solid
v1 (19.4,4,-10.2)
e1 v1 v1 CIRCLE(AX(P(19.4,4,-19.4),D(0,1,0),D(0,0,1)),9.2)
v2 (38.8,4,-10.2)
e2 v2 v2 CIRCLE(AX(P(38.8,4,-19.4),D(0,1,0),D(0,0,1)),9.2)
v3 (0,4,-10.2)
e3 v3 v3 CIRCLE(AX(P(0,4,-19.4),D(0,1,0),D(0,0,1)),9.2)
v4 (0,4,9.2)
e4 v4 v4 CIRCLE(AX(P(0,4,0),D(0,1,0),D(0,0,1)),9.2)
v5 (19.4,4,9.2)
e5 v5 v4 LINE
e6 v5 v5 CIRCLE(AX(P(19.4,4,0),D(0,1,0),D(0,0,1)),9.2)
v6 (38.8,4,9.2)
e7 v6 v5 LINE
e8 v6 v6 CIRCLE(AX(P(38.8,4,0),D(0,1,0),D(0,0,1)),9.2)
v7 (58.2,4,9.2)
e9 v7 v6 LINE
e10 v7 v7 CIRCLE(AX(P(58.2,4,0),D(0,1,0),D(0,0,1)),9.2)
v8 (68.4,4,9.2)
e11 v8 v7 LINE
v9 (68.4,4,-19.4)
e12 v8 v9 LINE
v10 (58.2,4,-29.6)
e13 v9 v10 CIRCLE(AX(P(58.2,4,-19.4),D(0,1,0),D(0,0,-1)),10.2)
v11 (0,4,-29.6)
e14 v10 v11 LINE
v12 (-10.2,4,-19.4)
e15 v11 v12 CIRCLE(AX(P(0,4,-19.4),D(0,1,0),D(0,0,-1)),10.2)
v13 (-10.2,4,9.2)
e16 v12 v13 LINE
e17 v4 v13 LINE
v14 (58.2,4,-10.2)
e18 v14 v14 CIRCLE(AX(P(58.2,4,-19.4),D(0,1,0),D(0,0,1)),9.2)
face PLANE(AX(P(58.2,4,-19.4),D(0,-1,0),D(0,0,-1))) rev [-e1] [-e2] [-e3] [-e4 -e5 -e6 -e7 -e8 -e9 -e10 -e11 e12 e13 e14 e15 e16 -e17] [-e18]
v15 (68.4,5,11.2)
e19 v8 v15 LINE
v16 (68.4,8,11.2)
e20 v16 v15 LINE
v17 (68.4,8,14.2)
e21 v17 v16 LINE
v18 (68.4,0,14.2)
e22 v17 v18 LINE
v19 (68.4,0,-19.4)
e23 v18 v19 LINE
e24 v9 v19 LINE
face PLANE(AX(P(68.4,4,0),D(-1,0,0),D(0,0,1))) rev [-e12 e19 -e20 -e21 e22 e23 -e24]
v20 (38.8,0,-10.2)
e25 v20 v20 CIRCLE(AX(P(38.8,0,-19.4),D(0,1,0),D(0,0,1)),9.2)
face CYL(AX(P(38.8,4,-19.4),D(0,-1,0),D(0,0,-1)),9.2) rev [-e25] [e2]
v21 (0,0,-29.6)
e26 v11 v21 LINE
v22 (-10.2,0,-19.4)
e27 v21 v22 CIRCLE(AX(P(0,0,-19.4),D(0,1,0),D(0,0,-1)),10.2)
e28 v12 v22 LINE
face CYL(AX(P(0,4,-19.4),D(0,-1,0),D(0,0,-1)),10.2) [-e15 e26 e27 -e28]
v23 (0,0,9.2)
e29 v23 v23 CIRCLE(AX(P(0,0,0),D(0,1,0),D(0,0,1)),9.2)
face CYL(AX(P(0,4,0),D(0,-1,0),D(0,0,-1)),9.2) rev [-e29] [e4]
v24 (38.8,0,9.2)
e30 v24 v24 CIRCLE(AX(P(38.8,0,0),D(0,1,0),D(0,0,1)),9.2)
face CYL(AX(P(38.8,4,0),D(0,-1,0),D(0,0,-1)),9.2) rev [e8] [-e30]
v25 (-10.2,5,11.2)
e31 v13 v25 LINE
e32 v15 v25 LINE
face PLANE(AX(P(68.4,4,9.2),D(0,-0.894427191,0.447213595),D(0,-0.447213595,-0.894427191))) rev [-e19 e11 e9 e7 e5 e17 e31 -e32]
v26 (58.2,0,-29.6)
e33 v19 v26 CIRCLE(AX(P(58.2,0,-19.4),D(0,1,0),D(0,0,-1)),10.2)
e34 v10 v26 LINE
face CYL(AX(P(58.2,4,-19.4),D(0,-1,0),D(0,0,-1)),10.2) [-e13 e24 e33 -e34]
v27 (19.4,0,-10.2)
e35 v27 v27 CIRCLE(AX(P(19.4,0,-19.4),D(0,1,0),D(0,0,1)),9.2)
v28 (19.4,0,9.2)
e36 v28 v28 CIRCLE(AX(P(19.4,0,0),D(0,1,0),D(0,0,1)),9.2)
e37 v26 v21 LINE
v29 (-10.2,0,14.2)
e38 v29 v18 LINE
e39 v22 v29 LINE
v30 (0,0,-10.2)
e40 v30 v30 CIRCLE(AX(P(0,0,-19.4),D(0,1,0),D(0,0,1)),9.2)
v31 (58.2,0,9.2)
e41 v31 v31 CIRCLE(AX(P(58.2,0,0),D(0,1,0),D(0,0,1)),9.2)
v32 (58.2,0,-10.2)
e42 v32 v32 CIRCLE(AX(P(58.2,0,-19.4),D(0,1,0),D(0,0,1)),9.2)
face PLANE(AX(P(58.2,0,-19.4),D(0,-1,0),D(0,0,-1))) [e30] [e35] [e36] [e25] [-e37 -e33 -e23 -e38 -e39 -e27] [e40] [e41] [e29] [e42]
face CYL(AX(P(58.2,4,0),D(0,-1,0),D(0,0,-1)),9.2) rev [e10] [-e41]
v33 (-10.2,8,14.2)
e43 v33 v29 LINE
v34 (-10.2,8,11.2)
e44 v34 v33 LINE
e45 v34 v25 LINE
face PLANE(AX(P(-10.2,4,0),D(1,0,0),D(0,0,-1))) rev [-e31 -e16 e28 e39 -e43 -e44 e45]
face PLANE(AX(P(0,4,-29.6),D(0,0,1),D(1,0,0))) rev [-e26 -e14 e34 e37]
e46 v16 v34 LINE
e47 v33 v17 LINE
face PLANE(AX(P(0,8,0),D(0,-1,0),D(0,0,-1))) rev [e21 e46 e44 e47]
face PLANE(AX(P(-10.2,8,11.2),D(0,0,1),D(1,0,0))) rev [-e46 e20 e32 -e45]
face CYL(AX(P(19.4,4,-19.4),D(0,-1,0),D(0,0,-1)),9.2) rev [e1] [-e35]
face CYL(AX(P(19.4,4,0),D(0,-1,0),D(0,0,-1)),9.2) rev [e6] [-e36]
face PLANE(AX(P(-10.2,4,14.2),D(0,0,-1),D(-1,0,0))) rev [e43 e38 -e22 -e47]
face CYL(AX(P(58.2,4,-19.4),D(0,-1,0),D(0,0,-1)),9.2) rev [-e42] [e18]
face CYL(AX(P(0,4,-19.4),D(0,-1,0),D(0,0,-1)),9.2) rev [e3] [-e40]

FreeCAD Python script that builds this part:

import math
import FreeCAD as App
import Part
import Sketcher
from FreeCAD import Vector
Q = App.Units.Quantity

doc = App.newDocument("Part")
body = doc.addObject("PartDesign::Body", "Body")

# Sketch on XZ plane
sketch1 = body.newObject("Sketcher::SketchObject", "Sketch")
sketch1.AttachmentSupport = (doc.getObject("XZ_Plane"), [""])
sketch1.MapMode = "FlatFace"
sketch1.addGeometry([
    Part.LineSegment(Vector(-10, 14, 0), Vector(68, 14, 0)),  # 0
    Part.LineSegment(Vector(68, 14, 0), Vector(68, -19, 0)),  # 1
    Part.ArcOfCircle(Part.Circle(Vector(58, -19, 0), Vector(0, 0, 1), 10), math.radians(-90), math.radians(0)),  # 2
    Part.LineSegment(Vector(58, -30, 0), Vector(0, -30, 0)),  # 3
    Part.ArcOfCircle(Part.Circle(Vector(0, -19, 0), Vector(0, 0, 1), 10), math.radians(180), math.radians(270)),  # 4
    Part.LineSegment(Vector(-10, -19, 0), Vector(-10, 14, 0)),  # 5
    Part.Circle(Vector(0, 0, 0), Vector(0, 0, 1), 9),  # 6
    Part.Circle(Vector(19, 0, 0), Vector(0, 0, 1), 9),  # 7
    Part.Circle(Vector(39, 0, 0), Vector(0, 0, 1), 9),  # 8
    Part.Circle(Vector(58, 0, 0), Vector(0, 0, 1), 9),  # 9
    Part.Circle(Vector(0, -19, 0), Vector(0, 0, 1), 9),  # 10
    Part.Circle(Vector(19, -19, 0), Vector(0, 0, 1), 9),  # 11
    Part.Circle(Vector(39, -19, 0), Vector(0, 0, 1), 9),  # 12
    Part.Circle(Vector(58, -19, 0), Vector(0, 0, 1), 9),  # 13
], False)
sketch1.addConstraint([
    Sketcher.Constraint("Coincident", 0, 2, 1, 1),
    Sketcher.Constraint("Tangent", 1, 2, 2, 2),
    Sketcher.Constraint("Tangent", 2, 1, 3, 1),
    Sketcher.Constraint("Tangent", 3, 2, 4, 2),
    Sketcher.Constraint("Tangent", 4, 1, 5, 1),
    Sketcher.Constraint("Coincident", 5, 2, 0, 1),
    Sketcher.Constraint("Horizontal", 0),
    Sketcher.Constraint("Vertical", 1),
    Sketcher.Constraint("Horizontal", 3),
    Sketcher.Constraint("Vertical", 5),
    Sketcher.Constraint("Coincident", 6, 3, -1, 1),
    Sketcher.Constraint("Coincident", 10, 3, 4, 3),
    Sketcher.Constraint("Coincident", 13, 3, 2, 3),
    Sketcher.Constraint("Equal", 2, 4),
    Sketcher.Constraint("Equal", 6, 7),
    Sketcher.Constraint("Equal", 7, 8),
    Sketcher.Constraint("Equal", 8, 9),
    Sketcher.Constraint("Equal", 9, 10),
    Sketcher.Constraint("Equal", 10, 11),
    Sketcher.Constraint("Equal", 11, 12),
    Sketcher.Constraint("Equal", 12, 13),
    Sketcher.Constraint("PointOnObject", 4, 3, -2),
    Sketcher.Constraint("PointOnObject", 7, 3, -1),
    Sketcher.Constraint("PointOnObject", 8, 3, -1),
    Sketcher.Constraint("PointOnObject", 9, 3, -1),
    Sketcher.Constraint("Horizontal", 10, 3, 11, 3),
    Sketcher.Constraint("Horizontal", 11, 3, 12, 3),
    Sketcher.Constraint("Vertical", 2, 3, 9, 3),
    Sketcher.Constraint("Vertical", 7, 3, 11, 3),
    Sketcher.Constraint("Vertical", 8, 3, 12, 3),
    Sketcher.Constraint("Diameter", 6, Q("18.4 mm")),
    Sketcher.Constraint("Radius", 2, Q("10.2 mm")),
    Sketcher.Constraint("DistanceX", 0, 1, 0, 2, Q("78.6 mm")),
    Sketcher.Constraint("DistanceY", 1, 2, 1, 1, Q("33.6 mm")),
    Sketcher.Constraint("DistanceY", 2, 3, -1, 1, Q("19.4 mm")),
    Sketcher.Constraint("DistanceX", -1, 1, 7, 3, Q("19.4 mm")),
    Sketcher.Constraint("DistanceX", -1, 1, 8, 3, Q("38.8 mm")),
])
pad1 = body.newObject("PartDesign::Pad", "Pad")
pad1.Profile = sketch1
pad1.Length = 4
pad1.Reversed = True

# Sketch on XZ plane
sketch2 = body.newObject("Sketcher::SketchObject", "Sketch001")
sketch2.AttachmentSupport = (doc.getObject("XZ_Plane"), [""])
sketch2.MapMode = "FlatFace"
sketch2.AttachmentOffset = App.Placement(Vector(0, 0, -4), App.Rotation())
sketch2.addGeometry([
    Part.LineSegment(Vector(-10.2, 11.2, 0), Vector(-10.2, 14.2, 0)),
    Part.LineSegment(Vector(-10.2, 14.2, 0), Vector(68.4, 14.2, 0)),
    Part.LineSegment(Vector(68.4, 14.2, 0), Vector(68.4, 11.2, 0)),
    Part.LineSegment(Vector(68.4, 11.2, 0), Vector(-10.2, 11.2, 0)),
], False)
sketch2.addConstraint([
    Sketcher.Constraint("Coincident", 0, 2, 1, 1),
    Sketcher.Constraint("Coincident", 1, 2, 2, 1),
    Sketcher.Constraint("Coincident", 2, 2, 3, 1),
    Sketcher.Constraint("Coincident", 3, 2, 0, 1),
    Sketcher.Constraint("Vertical", 0),
    Sketcher.Constraint("Horizontal", 1),
    Sketcher.Constraint("Vertical", 2),
    Sketcher.Constraint("Horizontal", 3),
    Sketcher.Constraint("DistanceY", 0, 1, 0, 2, Q("3 mm")),
    Sketcher.Constraint("DistanceX", 1, 1, 1, 2, Q("78.6 mm")),
    Sketcher.Constraint("DistanceX", 0, 2, -1, 1, Q("10.2 mm")),
    Sketcher.Constraint("DistanceY", -1, 1, 0, 2, Q("14.2 mm")),
])
pad2 = body.newObject("PartDesign::Pad", "Pad001")
pad2.Profile = sketch2
pad2.Length = 4
pad2.Reversed = True

# Sketch on YZ plane
sketch3 = body.newObject("Sketcher::SketchObject", "Sketch002")
sketch3.AttachmentSupport = (doc.getObject("YZ_Plane"), [""])
sketch3.MapMode = "FlatFace"
sketch3.AttachmentOffset = App.Placement(Vector(0, 0, 29.1), App.Rotation())
sketch3.addGeometry([
    Part.LineSegment(Vector(4, 9.2, 0), Vector(5, 11.2, 0)),
    Part.LineSegment(Vector(5, 11.2, 0), Vector(4, 11.2, 0)),
    Part.LineSegment(Vector(4, 11.2, 0), Vector(4, 9.2, 0)),
], False)
sketch3.addConstraint([
    Sketcher.Constraint("Coincident", 0, 2, 1, 1),
    Sketcher.Constraint("Coincident", 1, 2, 2, 1),
    Sketcher.Constraint("Coincident", 2, 2, 0, 1),
    Sketcher.Constraint("Horizontal", 1),
    Sketcher.Constraint("Vertical", 2),
    Sketcher.Constraint("DistanceX", 1, 2, 1, 1, Q("1 mm")),
    Sketcher.Constraint("DistanceY", 2, 2, 2, 1, Q("2 mm")),
    Sketcher.Constraint("DistanceX", -1, 1, 0, 2, Q("5 mm")),
    Sketcher.Constraint("DistanceY", -1, 1, 0, 2, Q("11.2 mm")),
])
pad3 = body.newObject("PartDesign::Pad", "Pad002")
pad3.Profile = sketch3
pad3.Length = 78.6
pad3.Midplane = True

doc.recompute()
